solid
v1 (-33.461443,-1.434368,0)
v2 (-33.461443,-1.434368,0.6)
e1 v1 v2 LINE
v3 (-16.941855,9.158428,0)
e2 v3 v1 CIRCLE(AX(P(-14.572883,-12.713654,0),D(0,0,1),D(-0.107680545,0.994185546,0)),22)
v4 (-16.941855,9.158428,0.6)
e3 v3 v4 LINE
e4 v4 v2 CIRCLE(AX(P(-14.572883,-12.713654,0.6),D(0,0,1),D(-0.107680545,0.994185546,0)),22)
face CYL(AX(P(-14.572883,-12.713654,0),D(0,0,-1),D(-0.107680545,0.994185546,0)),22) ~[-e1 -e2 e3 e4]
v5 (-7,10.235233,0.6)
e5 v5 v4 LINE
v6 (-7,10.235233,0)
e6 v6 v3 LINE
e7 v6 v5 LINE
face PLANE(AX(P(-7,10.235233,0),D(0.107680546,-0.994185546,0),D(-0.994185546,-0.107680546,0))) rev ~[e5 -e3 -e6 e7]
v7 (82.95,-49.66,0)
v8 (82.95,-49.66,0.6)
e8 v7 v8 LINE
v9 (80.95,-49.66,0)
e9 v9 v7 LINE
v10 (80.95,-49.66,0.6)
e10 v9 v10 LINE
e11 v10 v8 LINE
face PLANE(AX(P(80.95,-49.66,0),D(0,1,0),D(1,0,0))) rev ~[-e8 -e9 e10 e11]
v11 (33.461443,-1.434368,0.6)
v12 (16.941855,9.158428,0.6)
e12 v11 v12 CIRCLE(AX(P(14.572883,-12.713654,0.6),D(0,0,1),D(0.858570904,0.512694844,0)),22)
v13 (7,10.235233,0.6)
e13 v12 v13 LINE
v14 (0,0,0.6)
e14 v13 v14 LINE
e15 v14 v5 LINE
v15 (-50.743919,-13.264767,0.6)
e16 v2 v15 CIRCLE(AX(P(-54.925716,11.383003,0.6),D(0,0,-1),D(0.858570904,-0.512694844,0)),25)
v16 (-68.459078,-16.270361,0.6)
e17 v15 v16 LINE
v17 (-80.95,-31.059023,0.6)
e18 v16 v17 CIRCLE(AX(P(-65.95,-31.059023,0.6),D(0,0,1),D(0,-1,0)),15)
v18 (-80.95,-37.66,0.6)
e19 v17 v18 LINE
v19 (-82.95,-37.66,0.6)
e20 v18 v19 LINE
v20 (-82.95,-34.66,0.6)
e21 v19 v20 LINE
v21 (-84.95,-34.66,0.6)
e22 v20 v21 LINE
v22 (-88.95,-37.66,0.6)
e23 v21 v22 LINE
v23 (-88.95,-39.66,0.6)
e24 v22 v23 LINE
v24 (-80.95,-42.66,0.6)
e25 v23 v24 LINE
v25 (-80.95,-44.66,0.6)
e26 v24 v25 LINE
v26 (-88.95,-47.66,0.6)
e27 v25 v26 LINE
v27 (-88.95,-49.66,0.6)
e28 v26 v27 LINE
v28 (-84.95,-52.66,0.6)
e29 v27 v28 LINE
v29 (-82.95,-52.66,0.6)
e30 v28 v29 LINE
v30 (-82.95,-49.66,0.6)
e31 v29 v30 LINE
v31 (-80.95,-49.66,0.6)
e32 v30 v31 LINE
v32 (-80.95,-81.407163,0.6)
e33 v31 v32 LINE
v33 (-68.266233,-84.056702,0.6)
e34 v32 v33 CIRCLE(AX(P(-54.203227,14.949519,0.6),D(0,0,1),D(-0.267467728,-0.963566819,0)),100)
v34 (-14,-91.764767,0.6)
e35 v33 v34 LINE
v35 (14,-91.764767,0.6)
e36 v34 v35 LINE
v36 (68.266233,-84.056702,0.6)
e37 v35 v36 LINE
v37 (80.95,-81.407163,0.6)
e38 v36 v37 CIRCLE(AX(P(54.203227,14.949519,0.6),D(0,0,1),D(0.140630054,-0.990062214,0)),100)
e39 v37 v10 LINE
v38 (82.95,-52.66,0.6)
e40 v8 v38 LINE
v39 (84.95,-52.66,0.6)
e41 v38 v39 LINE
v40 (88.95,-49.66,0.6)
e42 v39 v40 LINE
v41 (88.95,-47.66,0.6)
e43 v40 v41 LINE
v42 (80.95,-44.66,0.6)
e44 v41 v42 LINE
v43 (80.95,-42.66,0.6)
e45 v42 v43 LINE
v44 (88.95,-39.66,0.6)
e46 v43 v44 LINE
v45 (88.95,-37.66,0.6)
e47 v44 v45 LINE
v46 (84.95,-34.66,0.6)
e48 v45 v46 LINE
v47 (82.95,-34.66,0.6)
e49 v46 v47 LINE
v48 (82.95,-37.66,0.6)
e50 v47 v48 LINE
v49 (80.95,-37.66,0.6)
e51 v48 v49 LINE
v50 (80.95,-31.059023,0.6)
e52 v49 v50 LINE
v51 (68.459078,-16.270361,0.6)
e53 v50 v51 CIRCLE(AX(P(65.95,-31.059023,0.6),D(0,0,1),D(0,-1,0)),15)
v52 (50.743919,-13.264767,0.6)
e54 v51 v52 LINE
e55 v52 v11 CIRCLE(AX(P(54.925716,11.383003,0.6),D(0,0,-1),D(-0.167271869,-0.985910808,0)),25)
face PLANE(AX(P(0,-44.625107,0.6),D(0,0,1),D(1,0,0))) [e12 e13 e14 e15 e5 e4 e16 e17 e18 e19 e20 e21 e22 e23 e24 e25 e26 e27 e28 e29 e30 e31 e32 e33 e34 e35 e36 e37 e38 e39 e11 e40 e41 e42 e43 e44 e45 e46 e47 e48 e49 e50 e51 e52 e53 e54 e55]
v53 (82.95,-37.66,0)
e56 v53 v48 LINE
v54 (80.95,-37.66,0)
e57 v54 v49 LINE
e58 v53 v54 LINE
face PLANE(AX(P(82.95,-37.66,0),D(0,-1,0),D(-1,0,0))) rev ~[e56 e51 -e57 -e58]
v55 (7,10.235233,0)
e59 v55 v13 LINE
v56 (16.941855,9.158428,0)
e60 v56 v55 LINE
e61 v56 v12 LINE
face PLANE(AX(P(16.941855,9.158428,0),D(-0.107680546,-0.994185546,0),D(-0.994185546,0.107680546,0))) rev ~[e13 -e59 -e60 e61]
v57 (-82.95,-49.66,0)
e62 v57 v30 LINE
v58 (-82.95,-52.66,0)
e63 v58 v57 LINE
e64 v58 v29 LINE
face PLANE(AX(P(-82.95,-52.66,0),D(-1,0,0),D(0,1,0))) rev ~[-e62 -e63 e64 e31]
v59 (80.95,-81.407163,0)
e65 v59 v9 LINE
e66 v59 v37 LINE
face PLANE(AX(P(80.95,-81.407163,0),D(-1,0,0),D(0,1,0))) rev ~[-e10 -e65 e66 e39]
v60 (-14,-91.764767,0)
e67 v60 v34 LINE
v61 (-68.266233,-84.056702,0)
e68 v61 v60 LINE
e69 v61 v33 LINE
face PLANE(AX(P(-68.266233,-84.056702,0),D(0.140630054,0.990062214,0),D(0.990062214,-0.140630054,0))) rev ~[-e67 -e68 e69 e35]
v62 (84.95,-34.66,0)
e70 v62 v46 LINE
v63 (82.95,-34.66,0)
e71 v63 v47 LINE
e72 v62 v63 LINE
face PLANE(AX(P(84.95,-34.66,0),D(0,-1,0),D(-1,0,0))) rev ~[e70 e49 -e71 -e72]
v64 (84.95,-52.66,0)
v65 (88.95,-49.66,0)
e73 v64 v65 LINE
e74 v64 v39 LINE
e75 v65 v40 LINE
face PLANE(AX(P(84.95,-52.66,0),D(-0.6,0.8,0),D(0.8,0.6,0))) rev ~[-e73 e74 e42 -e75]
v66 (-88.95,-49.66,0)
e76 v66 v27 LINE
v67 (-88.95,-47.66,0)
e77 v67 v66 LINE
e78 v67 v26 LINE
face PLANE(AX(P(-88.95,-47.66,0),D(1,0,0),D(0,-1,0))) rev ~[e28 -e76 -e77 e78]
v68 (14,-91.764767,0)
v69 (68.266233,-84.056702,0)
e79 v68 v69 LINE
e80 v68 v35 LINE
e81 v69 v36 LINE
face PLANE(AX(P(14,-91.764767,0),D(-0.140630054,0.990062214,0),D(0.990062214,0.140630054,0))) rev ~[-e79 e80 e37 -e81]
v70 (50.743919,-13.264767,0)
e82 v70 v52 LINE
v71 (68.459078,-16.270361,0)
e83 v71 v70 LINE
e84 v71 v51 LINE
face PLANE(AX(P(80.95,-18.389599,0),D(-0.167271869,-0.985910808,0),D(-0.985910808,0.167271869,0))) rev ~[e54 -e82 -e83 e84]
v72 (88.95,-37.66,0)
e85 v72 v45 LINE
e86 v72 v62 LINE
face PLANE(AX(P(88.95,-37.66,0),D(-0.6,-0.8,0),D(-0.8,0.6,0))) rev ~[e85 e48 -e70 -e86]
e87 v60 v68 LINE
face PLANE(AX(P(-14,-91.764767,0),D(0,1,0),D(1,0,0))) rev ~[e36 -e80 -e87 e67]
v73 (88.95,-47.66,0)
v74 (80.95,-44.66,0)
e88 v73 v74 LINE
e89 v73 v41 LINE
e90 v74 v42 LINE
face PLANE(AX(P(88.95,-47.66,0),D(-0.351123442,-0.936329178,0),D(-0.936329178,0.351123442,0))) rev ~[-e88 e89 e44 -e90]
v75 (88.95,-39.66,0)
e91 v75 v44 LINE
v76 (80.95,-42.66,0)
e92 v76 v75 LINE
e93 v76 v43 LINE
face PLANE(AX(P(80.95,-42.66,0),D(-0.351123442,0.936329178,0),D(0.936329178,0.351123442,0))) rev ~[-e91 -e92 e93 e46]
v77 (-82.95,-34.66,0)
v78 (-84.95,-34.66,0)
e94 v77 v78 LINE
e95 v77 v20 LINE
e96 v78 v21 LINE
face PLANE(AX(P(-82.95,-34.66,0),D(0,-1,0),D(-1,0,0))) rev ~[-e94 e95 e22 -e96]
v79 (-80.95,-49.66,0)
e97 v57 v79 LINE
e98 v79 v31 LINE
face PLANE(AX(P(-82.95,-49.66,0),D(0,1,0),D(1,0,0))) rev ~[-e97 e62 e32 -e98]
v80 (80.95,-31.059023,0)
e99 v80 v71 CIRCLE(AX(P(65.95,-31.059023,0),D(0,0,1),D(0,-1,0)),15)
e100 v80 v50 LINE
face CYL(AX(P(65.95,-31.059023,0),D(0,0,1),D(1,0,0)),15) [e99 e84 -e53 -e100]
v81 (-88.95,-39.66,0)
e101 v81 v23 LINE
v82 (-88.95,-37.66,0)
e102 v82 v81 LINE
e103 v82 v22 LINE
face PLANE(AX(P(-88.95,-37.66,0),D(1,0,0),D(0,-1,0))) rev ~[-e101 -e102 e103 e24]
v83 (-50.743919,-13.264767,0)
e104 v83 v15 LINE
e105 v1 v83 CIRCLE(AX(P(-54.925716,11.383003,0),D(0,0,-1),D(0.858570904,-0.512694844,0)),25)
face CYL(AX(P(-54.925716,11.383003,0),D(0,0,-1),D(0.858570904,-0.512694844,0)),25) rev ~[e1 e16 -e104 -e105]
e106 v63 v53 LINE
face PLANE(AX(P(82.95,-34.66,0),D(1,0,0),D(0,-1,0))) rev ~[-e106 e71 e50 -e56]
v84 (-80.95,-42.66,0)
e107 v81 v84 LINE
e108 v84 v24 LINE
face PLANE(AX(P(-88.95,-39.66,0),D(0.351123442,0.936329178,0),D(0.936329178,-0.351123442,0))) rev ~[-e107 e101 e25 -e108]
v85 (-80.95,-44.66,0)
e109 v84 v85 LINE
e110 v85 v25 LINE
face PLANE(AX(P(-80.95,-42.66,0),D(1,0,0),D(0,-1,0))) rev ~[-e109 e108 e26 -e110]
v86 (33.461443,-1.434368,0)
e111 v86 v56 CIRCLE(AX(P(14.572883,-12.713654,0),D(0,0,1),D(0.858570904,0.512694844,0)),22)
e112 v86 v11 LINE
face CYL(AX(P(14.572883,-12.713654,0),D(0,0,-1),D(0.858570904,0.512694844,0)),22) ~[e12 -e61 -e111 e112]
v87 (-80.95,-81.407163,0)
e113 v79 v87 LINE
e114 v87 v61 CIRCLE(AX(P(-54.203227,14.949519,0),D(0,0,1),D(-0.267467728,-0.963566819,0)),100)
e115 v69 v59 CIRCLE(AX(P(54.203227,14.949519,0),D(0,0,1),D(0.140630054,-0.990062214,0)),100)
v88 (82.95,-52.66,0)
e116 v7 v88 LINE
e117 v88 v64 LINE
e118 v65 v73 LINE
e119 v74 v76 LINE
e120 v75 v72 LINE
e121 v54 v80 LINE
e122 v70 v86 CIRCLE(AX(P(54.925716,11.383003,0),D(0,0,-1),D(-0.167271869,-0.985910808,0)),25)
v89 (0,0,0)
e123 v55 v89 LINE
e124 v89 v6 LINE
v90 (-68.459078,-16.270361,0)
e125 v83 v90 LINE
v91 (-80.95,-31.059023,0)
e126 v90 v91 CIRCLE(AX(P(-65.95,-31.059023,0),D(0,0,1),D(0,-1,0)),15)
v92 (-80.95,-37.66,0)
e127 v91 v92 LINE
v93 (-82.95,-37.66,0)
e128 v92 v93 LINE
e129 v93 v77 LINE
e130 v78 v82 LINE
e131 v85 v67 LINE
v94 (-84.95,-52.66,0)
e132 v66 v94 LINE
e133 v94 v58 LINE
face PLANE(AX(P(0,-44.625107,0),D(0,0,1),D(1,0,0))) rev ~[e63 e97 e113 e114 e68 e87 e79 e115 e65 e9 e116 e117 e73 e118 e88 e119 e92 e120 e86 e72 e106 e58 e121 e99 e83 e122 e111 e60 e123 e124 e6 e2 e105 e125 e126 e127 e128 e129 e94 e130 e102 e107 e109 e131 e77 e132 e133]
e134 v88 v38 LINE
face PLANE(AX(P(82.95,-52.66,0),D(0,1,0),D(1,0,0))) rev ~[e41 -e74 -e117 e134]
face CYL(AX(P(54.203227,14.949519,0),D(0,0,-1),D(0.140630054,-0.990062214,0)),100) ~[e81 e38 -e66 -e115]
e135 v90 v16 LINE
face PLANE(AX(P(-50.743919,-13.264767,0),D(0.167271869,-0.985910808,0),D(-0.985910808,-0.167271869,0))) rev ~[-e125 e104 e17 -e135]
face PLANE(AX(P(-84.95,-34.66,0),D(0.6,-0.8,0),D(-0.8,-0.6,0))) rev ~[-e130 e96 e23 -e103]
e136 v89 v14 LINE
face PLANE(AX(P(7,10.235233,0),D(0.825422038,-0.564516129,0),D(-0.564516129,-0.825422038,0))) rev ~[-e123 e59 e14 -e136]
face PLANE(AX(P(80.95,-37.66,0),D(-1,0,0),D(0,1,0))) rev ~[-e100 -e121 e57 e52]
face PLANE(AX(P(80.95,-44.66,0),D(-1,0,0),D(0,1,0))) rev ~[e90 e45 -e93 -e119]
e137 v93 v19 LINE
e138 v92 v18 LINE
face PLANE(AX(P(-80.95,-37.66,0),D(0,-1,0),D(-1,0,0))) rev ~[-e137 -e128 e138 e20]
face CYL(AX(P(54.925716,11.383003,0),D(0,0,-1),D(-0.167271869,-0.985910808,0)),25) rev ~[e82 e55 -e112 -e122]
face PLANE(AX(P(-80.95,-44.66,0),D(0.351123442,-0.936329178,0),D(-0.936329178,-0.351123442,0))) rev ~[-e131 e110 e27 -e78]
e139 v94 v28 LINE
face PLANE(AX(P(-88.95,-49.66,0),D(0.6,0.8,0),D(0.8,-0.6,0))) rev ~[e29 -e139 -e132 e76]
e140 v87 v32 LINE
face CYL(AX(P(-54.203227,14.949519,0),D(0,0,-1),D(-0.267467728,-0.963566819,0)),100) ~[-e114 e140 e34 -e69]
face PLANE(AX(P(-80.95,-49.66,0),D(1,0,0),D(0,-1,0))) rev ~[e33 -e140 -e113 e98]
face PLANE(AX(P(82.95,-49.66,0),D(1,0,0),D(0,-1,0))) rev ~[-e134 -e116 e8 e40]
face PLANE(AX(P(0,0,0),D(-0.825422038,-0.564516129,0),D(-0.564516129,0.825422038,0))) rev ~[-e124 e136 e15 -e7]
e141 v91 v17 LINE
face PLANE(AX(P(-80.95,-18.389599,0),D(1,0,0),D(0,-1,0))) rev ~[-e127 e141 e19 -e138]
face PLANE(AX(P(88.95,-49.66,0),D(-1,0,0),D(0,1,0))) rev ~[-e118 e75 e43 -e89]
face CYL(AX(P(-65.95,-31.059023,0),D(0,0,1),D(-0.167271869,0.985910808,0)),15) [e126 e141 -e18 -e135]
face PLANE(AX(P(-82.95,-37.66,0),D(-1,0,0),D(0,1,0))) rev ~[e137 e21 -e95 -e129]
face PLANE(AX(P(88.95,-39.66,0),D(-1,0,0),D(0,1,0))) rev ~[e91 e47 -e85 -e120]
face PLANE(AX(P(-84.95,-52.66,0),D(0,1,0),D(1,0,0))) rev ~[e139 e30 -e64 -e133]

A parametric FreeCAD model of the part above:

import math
import FreeCAD as App
import Part
import Sketcher

V = App.Vector


def edges_at(feature, points):
    """Names of the edges that pass closest to the given points."""
    edges = feature.Shape.Edges
    near = lambda p: min(range(len(edges)), key=lambda i: edges[i].distToShape(Part.Vertex(*p))[0])
    return sorted({f"Edge{near(p) + 1}" for p in points})

doc = App.newDocument("Part")
body = doc.addObject("PartDesign::Body", "Body")

# Sketch on XY plane
sketch1 = body.newObject("Sketcher::SketchObject", "Sketch")
sketch1.AttachmentSupport = (doc.getObject("XY_Plane"), [""])
sketch1.MapMode = "FlatFace"
sketch1.addGeometry([
    Part.LineSegment(V(-14, -91.764767, 0), V(14, -91.764767, 0)),  # 0
    Part.LineSegment(V(14, -91.764767, 0), V(68.266233, -84.056702, 0)),  # 1
    Part.ArcOfCircle(Part.Circle(V(54.203227, 14.949519, 0), V(0, 0, 1), 100), math.radians(-81.915694), math.radians(-74.486363)),  # 2
    Part.LineSegment(V(80.95, -81.407163, 0), V(80.95, -49.66, 0)),  # 3
    Part.LineSegment(V(80.95, -49.66, 0), V(82.95, -49.66, 0)),  # 4
    Part.LineSegment(V(82.95, -49.66, 0), V(82.95, -52.66, 0)),  # 5
    Part.LineSegment(V(82.95, -52.66, 0), V(84.95, -52.66, 0)),  # 6
    Part.LineSegment(V(84.95, -52.66, 0), V(88.95, -49.66, 0)),  # 7
    Part.LineSegment(V(88.95, -49.66, 0), V(88.95, -47.66, 0)),  # 8
    Part.LineSegment(V(88.95, -47.66, 0), V(80.95, -44.66, 0)),  # 9
    Part.LineSegment(V(80.95, -44.66, 0), V(80.95, -42.66, 0)),  # 10
    Part.LineSegment(V(80.95, -42.66, 0), V(88.95, -39.66, 0)),  # 11
    Part.LineSegment(V(88.95, -39.66, 0), V(88.95, -37.66, 0)),  # 12
    Part.LineSegment(V(88.95, -37.66, 0), V(84.95, -34.66, 0)),  # 13
    Part.LineSegment(V(84.95, -34.66, 0), V(82.95, -34.66, 0)),  # 14
    Part.LineSegment(V(82.95, -34.66, 0), V(82.95, -37.66, 0)),  # 15
    Part.LineSegment(V(82.95, -37.66, 0), V(80.95, -37.66, 0)),  # 16
    Part.LineSegment(V(80.95, -37.66, 0), V(80.95, -18.389599, 0)),  # 17
    Part.LineSegment(V(80.95, -18.389599, 0), V(50.743919, -13.264767, 0)),  # 18
    Part.ArcOfCircle(Part.Circle(V(54.925716, 11.383003, 0), V(0, 0, 1), 25), math.radians(-149.156501), math.radians(-99.629237)),  # 19
    Part.ArcOfCircle(Part.Circle(V(14.572883, -12.713654, 0), V(0, 0, 1), 22), math.radians(30.843499), math.radians(83.818374)),  # 20
    Part.LineSegment(V(16.941855, 9.158428, 0), V(7, 10.235233, 0)),  # 21
    Part.LineSegment(V(7, 10.235233, 0), V(0, 0, 0)),  # 22
    Part.LineSegment(V(0, 0, 0), V(-7, 10.235233, 0)),  # 23
    Part.LineSegment(V(-7, 10.235233, 0), V(-16.941855, 9.158428, 0)),  # 24
    Part.ArcOfCircle(Part.Circle(V(-14.572883, -12.713654, 0), V(0, 0, 1), 22), math.radians(96.181626), math.radians(149.156501)),  # 25
    Part.ArcOfCircle(Part.Circle(V(-54.925716, 11.383003, 0), V(0, 0, 1), 25), math.radians(-80.370763), math.radians(-30.843499)),  # 26
    Part.LineSegment(V(-50.743919, -13.264767, 0), V(-80.95, -18.389599, 0)),  # 27
    Part.LineSegment(V(-80.95, -18.389599, 0), V(-80.95, -37.66, 0)),  # 28
    Part.LineSegment(V(-80.95, -37.66, 0), V(-82.95, -37.66, 0)),  # 29
    Part.LineSegment(V(-82.95, -37.66, 0), V(-82.95, -34.66, 0)),  # 30
    Part.LineSegment(V(-82.95, -34.66, 0), V(-84.95, -34.66, 0)),  # 31
    Part.LineSegment(V(-84.95, -34.66, 0), V(-88.95, -37.66, 0)),  # 32
    Part.LineSegment(V(-88.95, -37.66, 0), V(-88.95, -39.66, 0)),  # 33
    Part.LineSegment(V(-88.95, -39.66, 0), V(-80.95, -42.66, 0)),  # 34
    Part.LineSegment(V(-80.95, -42.66, 0), V(-80.95, -44.66, 0)),  # 35
    Part.LineSegment(V(-80.95, -44.66, 0), V(-88.95, -47.66, 0)),  # 36
    Part.LineSegment(V(-88.95, -47.66, 0), V(-88.95, -49.66, 0)),  # 37
    Part.LineSegment(V(-88.95, -49.66, 0), V(-84.95, -52.66, 0)),  # 38
    Part.LineSegment(V(-84.95, -52.66, 0), V(-82.95, -52.66, 0)),  # 39
    Part.LineSegment(V(-82.95, -52.66, 0), V(-82.95, -49.66, 0)),  # 40
    Part.LineSegment(V(-82.95, -49.66, 0), V(-80.95, -49.66, 0)),  # 41
    Part.LineSegment(V(-80.95, -49.66, 0), V(-80.95, -81.407163, 0)),  # 42
    Part.ArcOfCircle(Part.Circle(V(-54.203227, 14.949519, 0), V(0, 0, 1), 100), math.radians(-105.513637), math.radians(-98.084306)),  # 43
    Part.LineSegment(V(-68.266233, -84.056702, 0), V(-14, -91.764767, 0)),  # 44
], False)
sketch1.addConstraint([
    Sketcher.Constraint("Coincident", 0, 2, 1, 1),
    Sketcher.Constraint("Tangent", 1, 2, 2, 1),
    Sketcher.Constraint("Coincident", 2, 2, 3, 1),
    Sketcher.Constraint("Coincident", 3, 2, 4, 1),
    Sketcher.Constraint("Coincident", 4, 2, 5, 1),
    Sketcher.Constraint("Coincident", 5, 2, 6, 1),
    Sketcher.Constraint("Coincident", 6, 2, 7, 1),
    Sketcher.Constraint("Coincident", 7, 2, 8, 1),
    Sketcher.Constraint("Coincident", 8, 2, 9, 1),
    Sketcher.Constraint("Coincident", 9, 2, 10, 1),
    Sketcher.Constraint("Coincident", 10, 2, 11, 1),
    Sketcher.Constraint("Coincident", 11, 2, 12, 1),
    Sketcher.Constraint("Coincident", 12, 2, 13, 1),
    Sketcher.Constraint("Coincident", 13, 2, 14, 1),
    Sketcher.Constraint("Coincident", 14, 2, 15, 1),
    Sketcher.Constraint("Coincident", 15, 2, 16, 1),
    Sketcher.Constraint("Coincident", 16, 2, 17, 1),
    Sketcher.Constraint("Coincident", 17, 2, 18, 1),
    Sketcher.Constraint("Tangent", 18, 2, 19, 2),
    Sketcher.Constraint("Tangent", 19, 1, 20, 1),
    Sketcher.Constraint("Tangent", 20, 2, 21, 1),
    Sketcher.Constraint("Coincident", 21, 2, 22, 1),
    Sketcher.Constraint("Coincident", 22, 2, 23, 1),
    Sketcher.Constraint("Coincident", 23, 2, 24, 1),
    Sketcher.Constraint("Tangent", 24, 2, 25, 1),
    Sketcher.Constraint("Tangent", 25, 2, 26, 2),
    Sketcher.Constraint("Tangent", 26, 1, 27, 1),
    Sketcher.Constraint("Coincident", 27, 2, 28, 1),
    Sketcher.Constraint("Coincident", 28, 2, 29, 1),
    Sketcher.Constraint("Coincident", 29, 2, 30, 1),
    Sketcher.Constraint("Coincident", 30, 2, 31, 1),
    Sketcher.Constraint("Coincident", 31, 2, 32, 1),
    Sketcher.Constraint("Coincident", 32, 2, 33, 1),
    Sketcher.Constraint("Coincident", 33, 2, 34, 1),
    Sketcher.Constraint("Coincident", 34, 2, 35, 1),
    Sketcher.Constraint("Coincident", 35, 2, 36, 1),
    Sketcher.Constraint("Coincident", 36, 2, 37, 1),
    Sketcher.Constraint("Coincident", 37, 2, 38, 1),
    Sketcher.Constraint("Coincident", 38, 2, 39, 1),
    Sketcher.Constraint("Coincident", 39, 2, 40, 1),
    Sketcher.Constraint("Coincident", 40, 2, 41, 1),
    Sketcher.Constraint("Coincident", 41, 2, 42, 1),
    Sketcher.Constraint("Coincident", 42, 2, 43, 1),
    Sketcher.Constraint("Tangent", 43, 2, 44, 1),
    Sketcher.Constraint("Coincident", 44, 2, 0, 1),
    Sketcher.Constraint("Horizontal", 0),
    Sketcher.Constraint("Vertical", 3),
    Sketcher.Constraint("Horizontal", 4),
    Sketcher.Constraint("Vertical", 5),
    Sketcher.Constraint("Horizontal", 6),
    Sketcher.Constraint("Vertical", 8),
    Sketcher.Constraint("Vertical", 10),
    Sketcher.Constraint("Vertical", 12),
    Sketcher.Constraint("Horizontal", 14),
    Sketcher.Constraint("Vertical", 15),
    Sketcher.Constraint("Horizontal", 16),
    Sketcher.Constraint("Vertical", 17),
    Sketcher.Constraint("Vertical", 28),
    Sketcher.Constraint("Horizontal", 29),
    Sketcher.Constraint("Vertical", 30),
    Sketcher.Constraint("Horizontal", 31),
    Sketcher.Constraint("Vertical", 33),
    Sketcher.Constraint("Vertical", 35),
    Sketcher.Constraint("Vertical", 37),
    Sketcher.Constraint("Horizontal", 39),
    Sketcher.Constraint("Vertical", 40),
    Sketcher.Constraint("Horizontal", 41),
    Sketcher.Constraint("Vertical", 42),
    Sketcher.Constraint("Coincident", 22, 2, -1, 1),
    Sketcher.Constraint("Equal", 20, 25),
    Sketcher.Constraint("Equal", 19, 26),
    Sketcher.Constraint("Equal", 2, 43),
    Sketcher.Constraint("Symmetric", 20, 3, 25, 3, -2),
    Sketcher.Constraint("Symmetric", 2, 3, 43, 3, -2),
    Sketcher.Constraint("Symmetric", 21, 2, 23, 2, -2),
    Sketcher.Constraint("Symmetric", 18, 2, 26, 1, -2),
    Sketcher.Constraint("Symmetric", 16, 2, 28, 2, -2),
    Sketcher.Constraint("Symmetric", 14, 2, 30, 2, -2),
    Sketcher.Constraint("Symmetric", 12, 2, 32, 2, -2),
    Sketcher.Constraint("Symmetric", 10, 2, 34, 2, -2),
    Sketcher.Constraint("Symmetric", 8, 2, 36, 2, -2),
    Sketcher.Constraint("Symmetric", 6, 2, 38, 2, -2),
    Sketcher.Constraint("Symmetric", 4, 2, 40, 2, -2),
    Sketcher.Constraint("Parallel", 7, 32),
    Sketcher.Constraint("Parallel", 9, 34),
    Sketcher.Constraint("Parallel", 11, 36),
    Sketcher.Constraint("Parallel", 13, 38),
    Sketcher.Constraint("Horizontal", 4, 2, 7, 2),
    Sketcher.Constraint("Horizontal", 12, 2, 15, 2),
    Sketcher.Constraint("Horizontal", 11, 2, 33, 2),
    Sketcher.Constraint("Horizontal", 7, 2, 37, 2),
    Sketcher.Constraint("Horizontal", 2, 2, 42, 2),
    Sketcher.Constraint("Horizontal", 1, 2, 43, 2),
    Sketcher.Constraint("Vertical", 3, 2, 9, 2),
    Sketcher.Constraint("Vertical", 8, 2, 11, 2),
    Sketcher.Constraint("Vertical", 6, 2, 13, 2),
    Sketcher.Constraint("Vertical", 5, 2, 14, 2),
    Sketcher.Constraint("Vertical", 10, 2, 16, 2),
    Sketcher.Constraint("Equal", 4, 6),
    Sketcher.Constraint("Equal", 41, 8),
    Sketcher.Constraint("Equal", 8, 10),
    Sketcher.Constraint("Equal", 10, 12),
    Sketcher.Constraint("Radius", 2, 100.0),
    Sketcher.Constraint("Radius", 19, 25.0),
    Sketcher.Constraint("Radius", 20, 22.0),
    Sketcher.Constraint("DistanceX", 0, 1, 0, 2, 28.0),
    Sketcher.Constraint("DistanceX", 4, 1, 4, 2, 2.0),
    Sketcher.Constraint("DistanceY", 5, 2, 5, 1, 3.0),
    Sketcher.Constraint("Distance", 7, 5.0),
    Sketcher.Constraint("Distance", 21, 10.0),
    Sketcher.Constraint("DistanceX", -1, 1, 21, 2, 7.0),
    Sketcher.Constraint("DistanceY", 3, 2, 9, 2, 5.0),
    Sketcher.Constraint("Distance", 22, 12.4),
    Sketcher.Constraint("DistanceX", -1, 1, 3, 2, 80.95),
    Sketcher.Constraint("DistanceY", 3, 2, -1, 1, 49.66),
    Sketcher.Constraint("DistanceY", 17, 1, 17, 2, 19.270401),
    Sketcher.Constraint("DistanceX", 25, 3, 19, 3, 69.498599),
    Sketcher.Constraint("DistanceY", 18, 2, 19, 1, 11.830399),
    Sketcher.Constraint("Distance", 1, 54.810932),
    Sketcher.Constraint("DistanceY", 3, 1, 3, 2, 31.747163),
    Sketcher.Constraint("DistanceY", -1, 1, 2, 3, 14.949519),
])
pad1 = body.newObject("PartDesign::Pad", "Pad")
pad1.Profile = sketch1
pad1.Length = 0.6
doc.recompute()

fillet = body.newObject("PartDesign::Fillet", "Fillet")
fillet.Base = (pad1, edges_at(pad1, [(80.95, -18.39, 0.3), (-80.95, -18.39, 0.3)]))
fillet.Radius = 15

doc.recompute()
